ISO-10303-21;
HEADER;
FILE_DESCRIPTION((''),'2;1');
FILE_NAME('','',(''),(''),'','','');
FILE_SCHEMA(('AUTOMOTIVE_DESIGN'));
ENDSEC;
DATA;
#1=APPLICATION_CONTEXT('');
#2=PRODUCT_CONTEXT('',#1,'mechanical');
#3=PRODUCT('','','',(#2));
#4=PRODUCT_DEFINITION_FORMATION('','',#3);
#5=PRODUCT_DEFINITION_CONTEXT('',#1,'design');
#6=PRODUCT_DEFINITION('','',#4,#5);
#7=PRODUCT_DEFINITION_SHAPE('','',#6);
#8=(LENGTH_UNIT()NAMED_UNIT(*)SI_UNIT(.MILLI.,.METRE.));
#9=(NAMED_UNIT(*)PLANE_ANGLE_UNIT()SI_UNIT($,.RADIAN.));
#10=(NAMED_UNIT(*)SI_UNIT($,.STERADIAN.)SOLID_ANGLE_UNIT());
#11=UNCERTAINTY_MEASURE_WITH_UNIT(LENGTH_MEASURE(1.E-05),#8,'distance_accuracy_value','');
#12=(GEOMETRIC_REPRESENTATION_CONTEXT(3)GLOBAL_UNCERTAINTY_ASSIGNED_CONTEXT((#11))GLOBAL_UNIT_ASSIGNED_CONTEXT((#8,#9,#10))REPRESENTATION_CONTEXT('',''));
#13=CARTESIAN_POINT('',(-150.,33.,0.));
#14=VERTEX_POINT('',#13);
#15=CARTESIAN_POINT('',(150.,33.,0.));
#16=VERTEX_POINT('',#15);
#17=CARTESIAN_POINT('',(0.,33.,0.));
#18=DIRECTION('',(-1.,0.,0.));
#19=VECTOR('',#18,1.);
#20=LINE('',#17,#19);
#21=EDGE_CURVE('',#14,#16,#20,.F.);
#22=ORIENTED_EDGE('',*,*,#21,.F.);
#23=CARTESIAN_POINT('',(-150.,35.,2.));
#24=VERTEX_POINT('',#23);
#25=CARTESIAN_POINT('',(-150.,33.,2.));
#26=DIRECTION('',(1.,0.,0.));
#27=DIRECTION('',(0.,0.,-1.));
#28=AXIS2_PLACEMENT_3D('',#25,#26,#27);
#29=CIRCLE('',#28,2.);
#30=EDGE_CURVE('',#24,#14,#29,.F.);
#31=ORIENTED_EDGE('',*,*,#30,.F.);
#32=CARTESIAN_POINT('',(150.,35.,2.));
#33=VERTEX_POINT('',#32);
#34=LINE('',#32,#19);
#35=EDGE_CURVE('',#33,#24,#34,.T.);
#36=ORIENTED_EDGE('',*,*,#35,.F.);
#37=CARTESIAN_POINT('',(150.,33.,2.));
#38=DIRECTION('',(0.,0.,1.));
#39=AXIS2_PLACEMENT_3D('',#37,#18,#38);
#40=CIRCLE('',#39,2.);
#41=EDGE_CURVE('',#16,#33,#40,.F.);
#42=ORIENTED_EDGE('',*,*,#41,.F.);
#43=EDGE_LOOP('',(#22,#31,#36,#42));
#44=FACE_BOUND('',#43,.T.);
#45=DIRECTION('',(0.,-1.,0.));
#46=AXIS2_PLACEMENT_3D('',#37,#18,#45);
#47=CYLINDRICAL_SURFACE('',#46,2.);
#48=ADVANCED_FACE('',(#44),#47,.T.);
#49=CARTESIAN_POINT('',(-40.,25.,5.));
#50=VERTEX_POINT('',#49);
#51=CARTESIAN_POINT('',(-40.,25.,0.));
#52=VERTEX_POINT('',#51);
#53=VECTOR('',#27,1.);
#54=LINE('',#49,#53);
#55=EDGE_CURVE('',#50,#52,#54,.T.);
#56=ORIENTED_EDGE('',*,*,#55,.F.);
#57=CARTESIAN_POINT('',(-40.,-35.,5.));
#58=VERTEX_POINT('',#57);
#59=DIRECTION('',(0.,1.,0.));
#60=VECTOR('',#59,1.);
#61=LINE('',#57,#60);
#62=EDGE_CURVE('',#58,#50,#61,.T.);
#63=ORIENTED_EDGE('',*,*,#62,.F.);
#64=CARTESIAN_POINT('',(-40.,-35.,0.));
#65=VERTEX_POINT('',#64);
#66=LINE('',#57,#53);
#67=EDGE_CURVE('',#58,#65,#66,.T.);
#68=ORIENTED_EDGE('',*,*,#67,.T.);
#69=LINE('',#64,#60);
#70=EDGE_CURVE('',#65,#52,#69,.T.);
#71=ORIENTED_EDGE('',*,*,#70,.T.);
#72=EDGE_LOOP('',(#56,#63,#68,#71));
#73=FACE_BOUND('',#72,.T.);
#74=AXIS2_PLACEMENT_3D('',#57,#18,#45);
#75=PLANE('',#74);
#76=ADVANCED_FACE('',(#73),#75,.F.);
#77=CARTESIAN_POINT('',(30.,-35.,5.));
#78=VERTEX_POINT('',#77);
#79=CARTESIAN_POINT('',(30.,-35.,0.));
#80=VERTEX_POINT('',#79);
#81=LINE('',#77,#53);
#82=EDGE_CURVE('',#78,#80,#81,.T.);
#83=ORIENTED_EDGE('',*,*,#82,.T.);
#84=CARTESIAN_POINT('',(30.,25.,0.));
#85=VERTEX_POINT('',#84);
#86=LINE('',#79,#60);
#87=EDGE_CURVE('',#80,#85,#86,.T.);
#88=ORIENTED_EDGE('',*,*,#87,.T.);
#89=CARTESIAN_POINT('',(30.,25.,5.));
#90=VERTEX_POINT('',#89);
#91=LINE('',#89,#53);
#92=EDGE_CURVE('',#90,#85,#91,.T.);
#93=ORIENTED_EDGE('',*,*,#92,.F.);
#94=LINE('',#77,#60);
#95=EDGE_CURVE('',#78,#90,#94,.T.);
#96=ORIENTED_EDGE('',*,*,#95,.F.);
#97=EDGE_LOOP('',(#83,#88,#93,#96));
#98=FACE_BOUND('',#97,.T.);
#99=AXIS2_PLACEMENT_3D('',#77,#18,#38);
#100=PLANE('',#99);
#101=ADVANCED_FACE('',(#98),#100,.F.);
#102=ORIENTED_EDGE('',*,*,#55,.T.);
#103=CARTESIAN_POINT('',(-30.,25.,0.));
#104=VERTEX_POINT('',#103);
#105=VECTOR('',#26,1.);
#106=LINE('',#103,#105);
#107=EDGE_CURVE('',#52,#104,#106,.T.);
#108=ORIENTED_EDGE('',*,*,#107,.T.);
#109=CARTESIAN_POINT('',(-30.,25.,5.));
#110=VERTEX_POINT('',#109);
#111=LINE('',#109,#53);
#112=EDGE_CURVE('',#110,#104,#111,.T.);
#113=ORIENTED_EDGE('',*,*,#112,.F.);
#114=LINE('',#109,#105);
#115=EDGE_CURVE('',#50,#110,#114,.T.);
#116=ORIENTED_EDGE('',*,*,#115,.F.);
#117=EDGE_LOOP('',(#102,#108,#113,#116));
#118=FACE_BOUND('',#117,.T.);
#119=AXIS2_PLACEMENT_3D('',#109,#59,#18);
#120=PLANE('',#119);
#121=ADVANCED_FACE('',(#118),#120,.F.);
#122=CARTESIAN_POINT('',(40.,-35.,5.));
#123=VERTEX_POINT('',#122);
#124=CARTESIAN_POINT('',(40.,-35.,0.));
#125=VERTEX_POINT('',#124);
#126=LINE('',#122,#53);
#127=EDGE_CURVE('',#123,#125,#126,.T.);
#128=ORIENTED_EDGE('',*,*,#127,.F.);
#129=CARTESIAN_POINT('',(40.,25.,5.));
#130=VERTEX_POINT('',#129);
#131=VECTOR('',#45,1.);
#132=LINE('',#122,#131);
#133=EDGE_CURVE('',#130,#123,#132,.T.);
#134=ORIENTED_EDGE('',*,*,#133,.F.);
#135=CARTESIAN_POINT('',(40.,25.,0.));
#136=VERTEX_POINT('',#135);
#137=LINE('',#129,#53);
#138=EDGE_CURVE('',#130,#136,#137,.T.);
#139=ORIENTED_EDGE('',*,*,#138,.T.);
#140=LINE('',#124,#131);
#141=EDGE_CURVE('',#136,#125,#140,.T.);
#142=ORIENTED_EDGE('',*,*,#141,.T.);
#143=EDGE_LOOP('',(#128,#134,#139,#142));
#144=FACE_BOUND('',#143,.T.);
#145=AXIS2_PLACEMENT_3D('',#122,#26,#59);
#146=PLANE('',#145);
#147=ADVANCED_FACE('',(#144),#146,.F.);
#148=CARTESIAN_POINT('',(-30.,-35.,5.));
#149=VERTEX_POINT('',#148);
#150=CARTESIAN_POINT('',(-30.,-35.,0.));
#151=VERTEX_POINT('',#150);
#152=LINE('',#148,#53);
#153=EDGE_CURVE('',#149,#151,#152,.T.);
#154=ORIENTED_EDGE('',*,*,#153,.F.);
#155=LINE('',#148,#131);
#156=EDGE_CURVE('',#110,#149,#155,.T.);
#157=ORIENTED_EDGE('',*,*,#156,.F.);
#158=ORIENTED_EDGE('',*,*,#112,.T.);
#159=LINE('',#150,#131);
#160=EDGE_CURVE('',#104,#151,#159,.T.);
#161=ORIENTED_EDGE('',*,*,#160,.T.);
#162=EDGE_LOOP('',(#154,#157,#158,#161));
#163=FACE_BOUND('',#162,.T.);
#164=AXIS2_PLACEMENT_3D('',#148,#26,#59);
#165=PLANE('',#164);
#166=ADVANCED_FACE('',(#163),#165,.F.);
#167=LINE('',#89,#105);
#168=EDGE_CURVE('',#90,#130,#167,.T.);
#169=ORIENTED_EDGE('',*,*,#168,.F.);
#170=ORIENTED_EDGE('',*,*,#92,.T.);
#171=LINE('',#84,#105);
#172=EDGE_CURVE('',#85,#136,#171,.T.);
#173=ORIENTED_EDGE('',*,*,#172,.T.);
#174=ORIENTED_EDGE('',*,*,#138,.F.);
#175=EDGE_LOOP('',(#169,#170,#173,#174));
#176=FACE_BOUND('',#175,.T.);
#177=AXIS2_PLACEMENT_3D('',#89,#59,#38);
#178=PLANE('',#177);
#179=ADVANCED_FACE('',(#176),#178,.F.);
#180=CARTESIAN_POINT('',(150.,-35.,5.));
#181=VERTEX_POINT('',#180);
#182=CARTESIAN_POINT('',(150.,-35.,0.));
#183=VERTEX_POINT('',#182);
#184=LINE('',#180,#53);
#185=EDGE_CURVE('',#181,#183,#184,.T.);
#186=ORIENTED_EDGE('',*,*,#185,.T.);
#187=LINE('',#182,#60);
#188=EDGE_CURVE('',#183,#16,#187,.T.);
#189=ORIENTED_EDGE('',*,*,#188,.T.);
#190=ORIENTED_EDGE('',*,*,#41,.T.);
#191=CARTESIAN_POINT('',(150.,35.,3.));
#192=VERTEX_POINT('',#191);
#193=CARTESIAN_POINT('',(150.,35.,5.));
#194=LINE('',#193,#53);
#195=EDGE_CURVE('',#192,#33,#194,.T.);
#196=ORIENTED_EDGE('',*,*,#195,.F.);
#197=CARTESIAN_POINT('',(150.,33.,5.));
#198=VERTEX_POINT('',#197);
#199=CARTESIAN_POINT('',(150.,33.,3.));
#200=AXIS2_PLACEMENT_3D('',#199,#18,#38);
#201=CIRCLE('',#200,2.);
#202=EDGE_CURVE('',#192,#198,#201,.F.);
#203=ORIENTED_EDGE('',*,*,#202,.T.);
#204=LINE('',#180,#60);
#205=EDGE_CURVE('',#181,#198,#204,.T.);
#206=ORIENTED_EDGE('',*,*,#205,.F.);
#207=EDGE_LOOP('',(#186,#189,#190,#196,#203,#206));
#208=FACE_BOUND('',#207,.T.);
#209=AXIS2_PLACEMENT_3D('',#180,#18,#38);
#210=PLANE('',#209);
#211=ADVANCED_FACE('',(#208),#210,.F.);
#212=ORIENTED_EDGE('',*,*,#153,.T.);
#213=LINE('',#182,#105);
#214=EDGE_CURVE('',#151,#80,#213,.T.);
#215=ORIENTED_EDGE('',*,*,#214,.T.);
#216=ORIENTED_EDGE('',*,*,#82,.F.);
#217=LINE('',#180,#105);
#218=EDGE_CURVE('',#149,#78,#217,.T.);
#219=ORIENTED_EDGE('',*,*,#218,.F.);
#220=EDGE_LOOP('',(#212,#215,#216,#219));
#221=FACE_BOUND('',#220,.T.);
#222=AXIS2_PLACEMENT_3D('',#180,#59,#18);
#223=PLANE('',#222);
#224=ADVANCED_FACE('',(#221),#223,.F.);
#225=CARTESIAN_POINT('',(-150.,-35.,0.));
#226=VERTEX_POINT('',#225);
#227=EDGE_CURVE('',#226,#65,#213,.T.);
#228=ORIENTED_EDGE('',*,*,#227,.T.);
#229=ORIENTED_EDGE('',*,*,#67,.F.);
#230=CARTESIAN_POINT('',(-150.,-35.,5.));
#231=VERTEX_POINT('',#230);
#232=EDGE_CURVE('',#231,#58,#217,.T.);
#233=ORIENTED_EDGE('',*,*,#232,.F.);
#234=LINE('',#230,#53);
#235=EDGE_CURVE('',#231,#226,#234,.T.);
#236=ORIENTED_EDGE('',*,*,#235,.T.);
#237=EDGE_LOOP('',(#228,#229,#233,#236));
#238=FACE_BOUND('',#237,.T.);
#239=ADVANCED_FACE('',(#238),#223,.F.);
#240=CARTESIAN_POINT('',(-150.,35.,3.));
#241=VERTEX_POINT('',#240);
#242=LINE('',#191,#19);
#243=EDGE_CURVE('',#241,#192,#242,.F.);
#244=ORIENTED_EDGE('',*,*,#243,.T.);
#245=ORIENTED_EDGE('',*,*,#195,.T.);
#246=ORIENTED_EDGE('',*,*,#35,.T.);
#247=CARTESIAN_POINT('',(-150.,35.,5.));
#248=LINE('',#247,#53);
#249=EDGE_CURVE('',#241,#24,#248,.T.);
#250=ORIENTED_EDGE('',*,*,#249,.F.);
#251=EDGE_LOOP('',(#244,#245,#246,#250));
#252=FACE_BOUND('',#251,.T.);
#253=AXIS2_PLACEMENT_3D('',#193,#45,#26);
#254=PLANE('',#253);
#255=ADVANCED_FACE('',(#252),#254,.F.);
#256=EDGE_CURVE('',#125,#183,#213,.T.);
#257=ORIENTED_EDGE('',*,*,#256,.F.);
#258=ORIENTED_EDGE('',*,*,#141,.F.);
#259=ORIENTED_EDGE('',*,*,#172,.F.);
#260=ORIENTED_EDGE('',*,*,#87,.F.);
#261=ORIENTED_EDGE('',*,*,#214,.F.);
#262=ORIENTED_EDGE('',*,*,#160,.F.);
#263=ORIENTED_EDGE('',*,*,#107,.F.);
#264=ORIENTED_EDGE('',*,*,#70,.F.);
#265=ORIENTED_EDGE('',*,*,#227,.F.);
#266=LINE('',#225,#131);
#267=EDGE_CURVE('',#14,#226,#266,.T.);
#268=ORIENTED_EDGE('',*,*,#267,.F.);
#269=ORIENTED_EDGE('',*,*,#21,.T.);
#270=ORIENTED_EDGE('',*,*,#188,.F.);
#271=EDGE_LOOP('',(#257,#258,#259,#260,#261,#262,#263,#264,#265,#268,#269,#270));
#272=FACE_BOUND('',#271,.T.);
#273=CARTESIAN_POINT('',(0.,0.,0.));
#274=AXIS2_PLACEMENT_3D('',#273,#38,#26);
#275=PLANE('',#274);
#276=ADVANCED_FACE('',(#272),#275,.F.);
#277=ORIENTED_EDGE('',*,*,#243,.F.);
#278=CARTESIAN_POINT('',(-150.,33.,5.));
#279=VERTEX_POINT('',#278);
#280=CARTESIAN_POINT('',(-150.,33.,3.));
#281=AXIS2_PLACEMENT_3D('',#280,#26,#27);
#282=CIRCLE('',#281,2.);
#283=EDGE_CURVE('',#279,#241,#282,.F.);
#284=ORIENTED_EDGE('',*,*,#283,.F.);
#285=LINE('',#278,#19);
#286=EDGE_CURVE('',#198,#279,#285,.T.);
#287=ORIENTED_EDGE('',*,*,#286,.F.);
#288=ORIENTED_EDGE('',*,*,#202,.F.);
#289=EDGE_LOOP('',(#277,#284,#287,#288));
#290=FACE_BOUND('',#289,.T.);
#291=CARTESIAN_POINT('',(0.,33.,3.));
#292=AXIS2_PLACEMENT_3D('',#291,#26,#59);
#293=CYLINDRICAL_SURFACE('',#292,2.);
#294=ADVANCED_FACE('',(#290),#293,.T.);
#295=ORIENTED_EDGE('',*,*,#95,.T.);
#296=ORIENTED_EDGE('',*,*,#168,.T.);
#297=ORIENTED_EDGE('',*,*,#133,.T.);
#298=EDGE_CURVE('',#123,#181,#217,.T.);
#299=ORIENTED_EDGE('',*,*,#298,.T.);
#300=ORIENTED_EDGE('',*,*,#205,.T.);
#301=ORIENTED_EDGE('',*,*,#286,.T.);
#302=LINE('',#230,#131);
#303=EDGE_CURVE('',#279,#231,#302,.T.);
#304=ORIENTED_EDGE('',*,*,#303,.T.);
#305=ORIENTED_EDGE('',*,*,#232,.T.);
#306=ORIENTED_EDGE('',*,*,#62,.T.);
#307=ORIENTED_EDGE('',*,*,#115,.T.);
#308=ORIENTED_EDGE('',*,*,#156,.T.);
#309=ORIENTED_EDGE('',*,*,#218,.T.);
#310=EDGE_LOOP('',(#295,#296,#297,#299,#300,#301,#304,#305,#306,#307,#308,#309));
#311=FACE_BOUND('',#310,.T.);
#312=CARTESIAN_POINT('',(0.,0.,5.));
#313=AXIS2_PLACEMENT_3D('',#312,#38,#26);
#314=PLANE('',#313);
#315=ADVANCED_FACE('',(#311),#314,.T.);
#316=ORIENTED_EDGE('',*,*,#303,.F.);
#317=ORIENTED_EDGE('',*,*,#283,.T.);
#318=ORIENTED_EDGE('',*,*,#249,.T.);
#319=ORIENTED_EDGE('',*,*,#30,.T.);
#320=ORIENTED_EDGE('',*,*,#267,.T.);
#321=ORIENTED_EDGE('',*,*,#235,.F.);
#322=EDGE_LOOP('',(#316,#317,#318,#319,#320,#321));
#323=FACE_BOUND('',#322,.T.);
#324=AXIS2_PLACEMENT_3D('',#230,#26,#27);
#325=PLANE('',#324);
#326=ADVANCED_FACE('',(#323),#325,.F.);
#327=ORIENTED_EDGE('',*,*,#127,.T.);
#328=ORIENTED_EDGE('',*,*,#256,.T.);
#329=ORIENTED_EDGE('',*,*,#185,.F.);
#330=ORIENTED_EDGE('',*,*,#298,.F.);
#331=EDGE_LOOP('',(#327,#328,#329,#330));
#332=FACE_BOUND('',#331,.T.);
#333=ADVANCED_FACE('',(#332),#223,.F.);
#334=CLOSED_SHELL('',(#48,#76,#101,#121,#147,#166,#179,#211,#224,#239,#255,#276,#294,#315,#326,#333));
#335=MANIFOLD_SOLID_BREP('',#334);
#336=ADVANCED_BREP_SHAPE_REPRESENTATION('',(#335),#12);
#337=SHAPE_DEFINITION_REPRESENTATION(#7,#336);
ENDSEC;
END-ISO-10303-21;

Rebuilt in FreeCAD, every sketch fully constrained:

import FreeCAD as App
import Part
import Sketcher
from FreeCAD import Vector


def edges_at(feature, points):
    """Names of the edges that pass closest to the given points."""
    edges = feature.Shape.Edges
    near = lambda p: min(range(len(edges)), key=lambda i: edges[i].distToShape(Part.Vertex(*p))[0])
    return sorted({f"Edge{near(p) + 1}" for p in points})

doc = App.newDocument("Part")
body = doc.addObject("PartDesign::Body", "Body")

# Sketch on XY plane
sketch1 = body.newObject("Sketcher::SketchObject", "Sketch")
sketch1.AttachmentSupport = (doc.getObject("XY_Plane"), [""])
sketch1.MapMode = "FlatFace"
sketch1.addGeometry([
    Part.LineSegment(Vector(-150, 35, 0), Vector(-150, -35, 0)),
    Part.LineSegment(Vector(-150, -35, 0), Vector(150, -35, 0)),
    Part.LineSegment(Vector(150, -35, 0), Vector(150, 35, 0)),
    Part.LineSegment(Vector(150, 35, 0), Vector(-150, 35, 0)),
], False)
sketch1.addConstraint([
    Sketcher.Constraint("Coincident", 0, 2, 1, 1),
    Sketcher.Constraint("Coincident", 1, 2, 2, 1),
    Sketcher.Constraint("Coincident", 2, 2, 3, 1),
    Sketcher.Constraint("Coincident", 3, 2, 0, 1),
    Sketcher.Constraint("Vertical", 0),
    Sketcher.Constraint("Horizontal", 1),
    Sketcher.Constraint("Vertical", 2),
    Sketcher.Constraint("Horizontal", 3),
    Sketcher.Constraint("Symmetric", 0, 2, 2, 2, -1, 1),
    Sketcher.Constraint("DistanceX", 1, 1, 1, 2, 300.0),
    Sketcher.Constraint("DistanceY", 0, 2, 0, 1, 70.0),
])
pad1 = body.newObject("PartDesign::Pad", "Pad")
pad1.Profile = sketch1
pad1.Length = 5
doc.recompute()

fillet = body.newObject("PartDesign::Fillet", "Fillet")
fillet.Base = (pad1, edges_at(pad1, [(0, 35, 0)]))
fillet.Radius = 2
doc.recompute()

fillet2 = body.newObject("PartDesign::Fillet", "Fillet001")
fillet2.Base = (fillet, edges_at(fillet, [(0, 35, 5)]))
fillet2.Radius = 2

# Sketch on XY plane
sketch2 = body.newObject("Sketcher::SketchObject", "Sketch001")
sketch2.AttachmentSupport = (doc.getObject("XY_Plane"), [""])
sketch2.MapMode = "FlatFace"
sketch2.addGeometry([
    Part.LineSegment(Vector(40, 25, 0), Vector(40, -35, 0)),  # 0
    Part.LineSegment(Vector(40, -35, 0), Vector(30, -35, 0)),  # 1
    Part.LineSegment(Vector(30, -35, 0), Vector(30, 25, 0)),  # 2
    Part.LineSegment(Vector(30, 25, 0), Vector(40, 25, 0)),  # 3
    Part.LineSegment(Vector(-30, 25, 0), Vector(-30, -35, 0)),  # 4
    Part.LineSegment(Vector(-30, -35, 0), Vector(-40, -35, 0)),  # 5
    Part.LineSegment(Vector(-40, -35, 0), Vector(-40, 25, 0)),  # 6
    Part.LineSegment(Vector(-40, 25, 0), Vector(-30, 25, 0)),  # 7
], False)
sketch2.addConstraint([
    Sketcher.Constraint("Coincident", 0, 2, 1, 1),
    Sketcher.Constraint("Coincident", 1, 2, 2, 1),
    Sketcher.Constraint("Coincident", 2, 2, 3, 1),
    Sketcher.Constraint("Coincident", 3, 2, 0, 1),
    Sketcher.Constraint("Coincident", 4, 2, 5, 1),
    Sketcher.Constraint("Coincident", 5, 2, 6, 1),
    Sketcher.Constraint("Coincident", 6, 2, 7, 1),
    Sketcher.Constraint("Coincident", 7, 2, 4, 1),
    Sketcher.Constraint("Vertical", 0),
    Sketcher.Constraint("Horizontal", 1),
    Sketcher.Constraint("Vertical", 2),
    Sketcher.Constraint("Horizontal", 3),
    Sketcher.Constraint("Vertical", 4),
    Sketcher.Constraint("Horizontal", 5),
    Sketcher.Constraint("Vertical", 6),
    Sketcher.Constraint("Horizontal", 7),
    Sketcher.Constraint("Symmetric", 1, 2, 4, 2, -2),
    Sketcher.Constraint("Symmetric", 3, 2, 6, 2, -2),
    Sketcher.Constraint("DistanceX", 1, 2, 1, 1, 10.0),
    Sketcher.Constraint("DistanceY", 0, 2, 0, 1, 60.0),
    Sketcher.Constraint("DistanceX", -1, 1, 0, 2, 40.0),
    Sketcher.Constraint("DistanceY", 0, 2, -1, 1, 35.0),
])
pocket1 = body.newObject("PartDesign::Pocket", "Pocket")
pocket1.Profile = sketch2
pocket1.Type = "ThroughAll"
pocket1.Reversed = True

doc.recompute()
